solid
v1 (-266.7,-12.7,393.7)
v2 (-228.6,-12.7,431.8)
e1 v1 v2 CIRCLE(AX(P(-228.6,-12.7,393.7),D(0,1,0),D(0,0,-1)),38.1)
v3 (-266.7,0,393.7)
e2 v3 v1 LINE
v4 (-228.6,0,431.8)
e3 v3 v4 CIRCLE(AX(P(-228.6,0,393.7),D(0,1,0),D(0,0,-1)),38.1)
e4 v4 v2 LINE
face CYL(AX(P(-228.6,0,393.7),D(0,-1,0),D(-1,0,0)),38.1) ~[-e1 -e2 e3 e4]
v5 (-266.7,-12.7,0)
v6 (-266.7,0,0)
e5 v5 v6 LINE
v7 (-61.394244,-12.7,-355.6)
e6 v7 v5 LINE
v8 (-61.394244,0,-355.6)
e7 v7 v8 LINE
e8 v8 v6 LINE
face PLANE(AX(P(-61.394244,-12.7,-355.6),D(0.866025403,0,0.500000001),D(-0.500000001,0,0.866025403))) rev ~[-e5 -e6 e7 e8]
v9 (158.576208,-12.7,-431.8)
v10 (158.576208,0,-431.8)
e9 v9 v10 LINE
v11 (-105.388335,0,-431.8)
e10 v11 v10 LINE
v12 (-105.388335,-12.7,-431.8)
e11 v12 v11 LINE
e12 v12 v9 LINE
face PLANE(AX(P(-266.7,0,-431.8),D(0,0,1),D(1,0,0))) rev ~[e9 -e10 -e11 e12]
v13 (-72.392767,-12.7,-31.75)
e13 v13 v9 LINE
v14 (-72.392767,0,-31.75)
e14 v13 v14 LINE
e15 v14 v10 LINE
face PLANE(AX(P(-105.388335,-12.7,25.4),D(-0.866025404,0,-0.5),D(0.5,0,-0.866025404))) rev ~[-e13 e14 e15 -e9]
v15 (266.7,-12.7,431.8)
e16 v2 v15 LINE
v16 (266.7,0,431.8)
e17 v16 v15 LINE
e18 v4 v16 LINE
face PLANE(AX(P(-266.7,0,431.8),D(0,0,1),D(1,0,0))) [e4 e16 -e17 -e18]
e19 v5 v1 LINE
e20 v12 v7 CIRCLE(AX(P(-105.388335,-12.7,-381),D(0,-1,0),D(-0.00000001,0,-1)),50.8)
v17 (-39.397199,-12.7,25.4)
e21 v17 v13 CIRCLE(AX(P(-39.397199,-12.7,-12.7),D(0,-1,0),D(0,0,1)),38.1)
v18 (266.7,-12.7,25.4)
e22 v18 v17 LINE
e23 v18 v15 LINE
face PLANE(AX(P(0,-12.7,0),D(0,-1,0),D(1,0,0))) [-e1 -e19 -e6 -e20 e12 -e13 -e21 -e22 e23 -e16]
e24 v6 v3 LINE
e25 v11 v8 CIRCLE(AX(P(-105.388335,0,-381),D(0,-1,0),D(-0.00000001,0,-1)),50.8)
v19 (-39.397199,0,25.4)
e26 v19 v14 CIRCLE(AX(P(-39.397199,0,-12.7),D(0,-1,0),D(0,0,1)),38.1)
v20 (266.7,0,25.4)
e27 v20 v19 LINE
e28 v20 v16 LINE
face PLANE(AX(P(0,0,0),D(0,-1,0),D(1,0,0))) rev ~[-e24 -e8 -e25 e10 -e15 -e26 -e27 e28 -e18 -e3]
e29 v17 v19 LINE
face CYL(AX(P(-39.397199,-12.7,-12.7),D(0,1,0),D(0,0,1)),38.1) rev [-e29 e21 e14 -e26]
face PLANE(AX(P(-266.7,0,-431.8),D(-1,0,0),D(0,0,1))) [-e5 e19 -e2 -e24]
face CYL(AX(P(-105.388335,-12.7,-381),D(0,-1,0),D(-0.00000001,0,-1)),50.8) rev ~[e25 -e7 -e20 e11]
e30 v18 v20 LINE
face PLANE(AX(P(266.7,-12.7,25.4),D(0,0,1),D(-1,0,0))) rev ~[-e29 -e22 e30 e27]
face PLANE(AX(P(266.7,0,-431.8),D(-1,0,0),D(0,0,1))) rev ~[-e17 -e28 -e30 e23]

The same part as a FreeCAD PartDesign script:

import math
import FreeCAD as App
import Part
import Sketcher
Q = App.Units.Quantity


def edges_at(feature, points):
    """Names of the edges that pass closest to the given points."""
    edges = feature.Shape.Edges
    near = lambda p: min(range(len(edges)), key=lambda i: edges[i].distToShape(Part.Vertex(*p))[0])
    return sorted({f"Edge{near(p) + 1}" for p in points})


def add_polygon(sketch, points):
    """Adds a closed chain of lines whose ends are joined by coincident constraints."""
    first, n = sketch.GeometryCount, len(points)
    for a, b in zip(points, points[1:] + points[:1]):
        sketch.addGeometry(Part.LineSegment(App.Vector(*a, 0), App.Vector(*b, 0)), False)
    for i in range(n):
        sketch.addConstraint(Sketcher.Constraint("Coincident", first + i, 2, first + (i + 1) % n, 1))

doc = App.newDocument("Part")
body = doc.addObject("PartDesign::Body", "Body")

# Sketch on XZ plane
sketch1 = body.newObject("Sketcher::SketchObject", "Sketch")
sketch1.AttachmentSupport = (doc.getObject("XZ_Plane"), [""])
sketch1.MapMode = "FlatFace"
add_polygon(sketch1, [(-266.7, 431.8), (-266.7, -431.8), (266.7, -431.8), (266.7, 431.8)])  # lines 0-3
sketch1.addConstraint(Sketcher.Constraint("Vertical", 0))
sketch1.addConstraint(Sketcher.Constraint("Horizontal", 1))
sketch1.addConstraint(Sketcher.Constraint("Vertical", 2))
sketch1.addConstraint(Sketcher.Constraint("Horizontal", 3))
sketch1.addConstraint(Sketcher.Constraint("Symmetric", 0, 2, 2, 2, -1, 1))
sketch1.addConstraint(Sketcher.Constraint("DistanceX", 1, 1, 1, 2, Q("21 in")))
sketch1.addConstraint(Sketcher.Constraint("DistanceY", 0, 2, 0, 1, Q("34 in")))
pad1 = body.newObject("PartDesign::Pad", "Pad")
pad1.Profile = sketch1
pad1.Length = Q("0.5 in")

# Sketch on XZ plane
sketch2 = body.newObject("Sketcher::SketchObject", "Sketch001")
sketch2.AttachmentSupport = (doc.getObject("XZ_Plane"), [""])
sketch2.MapMode = "FlatFace"
sketch2.AttachmentOffset = App.Placement(App.Vector(0, 0, 0.5 * 25.4), App.Rotation())
sketch2.addGeometry(Part.LineSegment(App.Vector(-61.394244, -355.6, 0), App.Vector(-266.7, 0, 0)), False)  # 0
sketch2.addGeometry(Part.LineSegment(App.Vector(-266.7, 0, 0), App.Vector(-266.7, -431.8, 0)), False)  # 1
sketch2.addGeometry(Part.LineSegment(App.Vector(-266.7, -431.8, 0), App.Vector(-105.388335, -431.8, 0)), False)  # 2
sketch2.addGeometry(Part.ArcOfCircle(Part.Circle(App.Vector(-105.388335, -381, 0), App.Vector(0, 0, 1), 50.8), math.radians(-90.000001), math.radians(30)), False)  # 3
add_polygon(sketch2, [(-105.388335, 25.4), (158.576208, -431.8), (266.7, -431.8), (266.7, 25.4)])  # lines 4-7
sketch2.addConstraint(Sketcher.Constraint("Coincident", 0, 2, 1, 1))
sketch2.addConstraint(Sketcher.Constraint("Coincident", 1, 2, 2, 1))
sketch2.addConstraint(Sketcher.Constraint("Tangent", 2, 2, 3, 1))
sketch2.addConstraint(Sketcher.Constraint("Tangent", 3, 2, 0, 1))
sketch2.addConstraint(Sketcher.Constraint("Vertical", 1))
sketch2.addConstraint(Sketcher.Constraint("Horizontal", 2))
sketch2.addConstraint(Sketcher.Constraint("Horizontal", 5))
sketch2.addConstraint(Sketcher.Constraint("Vertical", 6))
sketch2.addConstraint(Sketcher.Constraint("Horizontal", 7))
sketch2.addConstraint(Sketcher.Constraint("Symmetric", 1, 2, 5, 2, -2))
sketch2.addConstraint(Sketcher.Constraint("PointOnObject", 0, 2, -1))
sketch2.addConstraint(Sketcher.Constraint("Parallel", 0, 4))
sketch2.addConstraint(Sketcher.Constraint("Vertical", 2, 2, 7, 2))
sketch2.addConstraint(Sketcher.Constraint("Radius", 3, Q("2 in")))
sketch2.addConstraint(Sketcher.Constraint("DistanceY", 1, 2, 1, 1, Q("17 in")))
sketch2.addConstraint(Sketcher.Constraint("DistanceY", 6, 1, 6, 2, Q("18 in")))
sketch2.addConstraint(Sketcher.Constraint("Angle", 0, Q("120 deg")))
sketch2.addConstraint(Sketcher.Constraint("DistanceX", 1, 2, 5, 2, Q("21 in")))
pocket1 = body.newObject("PartDesign::Pocket", "Pocket")
pocket1.Profile = sketch2
pocket1.Type = "ThroughAll"
doc.recompute()

fillet = body.newObject("PartDesign::Fillet", "Fillet")
fillet.Base = (pocket1, edges_at(pocket1, [(-266.7, -6.35, 431.8), (-105.388, -6.35, 25.4)]))
fillet.Radius = Q("1.5 in")

doc.recompute()
